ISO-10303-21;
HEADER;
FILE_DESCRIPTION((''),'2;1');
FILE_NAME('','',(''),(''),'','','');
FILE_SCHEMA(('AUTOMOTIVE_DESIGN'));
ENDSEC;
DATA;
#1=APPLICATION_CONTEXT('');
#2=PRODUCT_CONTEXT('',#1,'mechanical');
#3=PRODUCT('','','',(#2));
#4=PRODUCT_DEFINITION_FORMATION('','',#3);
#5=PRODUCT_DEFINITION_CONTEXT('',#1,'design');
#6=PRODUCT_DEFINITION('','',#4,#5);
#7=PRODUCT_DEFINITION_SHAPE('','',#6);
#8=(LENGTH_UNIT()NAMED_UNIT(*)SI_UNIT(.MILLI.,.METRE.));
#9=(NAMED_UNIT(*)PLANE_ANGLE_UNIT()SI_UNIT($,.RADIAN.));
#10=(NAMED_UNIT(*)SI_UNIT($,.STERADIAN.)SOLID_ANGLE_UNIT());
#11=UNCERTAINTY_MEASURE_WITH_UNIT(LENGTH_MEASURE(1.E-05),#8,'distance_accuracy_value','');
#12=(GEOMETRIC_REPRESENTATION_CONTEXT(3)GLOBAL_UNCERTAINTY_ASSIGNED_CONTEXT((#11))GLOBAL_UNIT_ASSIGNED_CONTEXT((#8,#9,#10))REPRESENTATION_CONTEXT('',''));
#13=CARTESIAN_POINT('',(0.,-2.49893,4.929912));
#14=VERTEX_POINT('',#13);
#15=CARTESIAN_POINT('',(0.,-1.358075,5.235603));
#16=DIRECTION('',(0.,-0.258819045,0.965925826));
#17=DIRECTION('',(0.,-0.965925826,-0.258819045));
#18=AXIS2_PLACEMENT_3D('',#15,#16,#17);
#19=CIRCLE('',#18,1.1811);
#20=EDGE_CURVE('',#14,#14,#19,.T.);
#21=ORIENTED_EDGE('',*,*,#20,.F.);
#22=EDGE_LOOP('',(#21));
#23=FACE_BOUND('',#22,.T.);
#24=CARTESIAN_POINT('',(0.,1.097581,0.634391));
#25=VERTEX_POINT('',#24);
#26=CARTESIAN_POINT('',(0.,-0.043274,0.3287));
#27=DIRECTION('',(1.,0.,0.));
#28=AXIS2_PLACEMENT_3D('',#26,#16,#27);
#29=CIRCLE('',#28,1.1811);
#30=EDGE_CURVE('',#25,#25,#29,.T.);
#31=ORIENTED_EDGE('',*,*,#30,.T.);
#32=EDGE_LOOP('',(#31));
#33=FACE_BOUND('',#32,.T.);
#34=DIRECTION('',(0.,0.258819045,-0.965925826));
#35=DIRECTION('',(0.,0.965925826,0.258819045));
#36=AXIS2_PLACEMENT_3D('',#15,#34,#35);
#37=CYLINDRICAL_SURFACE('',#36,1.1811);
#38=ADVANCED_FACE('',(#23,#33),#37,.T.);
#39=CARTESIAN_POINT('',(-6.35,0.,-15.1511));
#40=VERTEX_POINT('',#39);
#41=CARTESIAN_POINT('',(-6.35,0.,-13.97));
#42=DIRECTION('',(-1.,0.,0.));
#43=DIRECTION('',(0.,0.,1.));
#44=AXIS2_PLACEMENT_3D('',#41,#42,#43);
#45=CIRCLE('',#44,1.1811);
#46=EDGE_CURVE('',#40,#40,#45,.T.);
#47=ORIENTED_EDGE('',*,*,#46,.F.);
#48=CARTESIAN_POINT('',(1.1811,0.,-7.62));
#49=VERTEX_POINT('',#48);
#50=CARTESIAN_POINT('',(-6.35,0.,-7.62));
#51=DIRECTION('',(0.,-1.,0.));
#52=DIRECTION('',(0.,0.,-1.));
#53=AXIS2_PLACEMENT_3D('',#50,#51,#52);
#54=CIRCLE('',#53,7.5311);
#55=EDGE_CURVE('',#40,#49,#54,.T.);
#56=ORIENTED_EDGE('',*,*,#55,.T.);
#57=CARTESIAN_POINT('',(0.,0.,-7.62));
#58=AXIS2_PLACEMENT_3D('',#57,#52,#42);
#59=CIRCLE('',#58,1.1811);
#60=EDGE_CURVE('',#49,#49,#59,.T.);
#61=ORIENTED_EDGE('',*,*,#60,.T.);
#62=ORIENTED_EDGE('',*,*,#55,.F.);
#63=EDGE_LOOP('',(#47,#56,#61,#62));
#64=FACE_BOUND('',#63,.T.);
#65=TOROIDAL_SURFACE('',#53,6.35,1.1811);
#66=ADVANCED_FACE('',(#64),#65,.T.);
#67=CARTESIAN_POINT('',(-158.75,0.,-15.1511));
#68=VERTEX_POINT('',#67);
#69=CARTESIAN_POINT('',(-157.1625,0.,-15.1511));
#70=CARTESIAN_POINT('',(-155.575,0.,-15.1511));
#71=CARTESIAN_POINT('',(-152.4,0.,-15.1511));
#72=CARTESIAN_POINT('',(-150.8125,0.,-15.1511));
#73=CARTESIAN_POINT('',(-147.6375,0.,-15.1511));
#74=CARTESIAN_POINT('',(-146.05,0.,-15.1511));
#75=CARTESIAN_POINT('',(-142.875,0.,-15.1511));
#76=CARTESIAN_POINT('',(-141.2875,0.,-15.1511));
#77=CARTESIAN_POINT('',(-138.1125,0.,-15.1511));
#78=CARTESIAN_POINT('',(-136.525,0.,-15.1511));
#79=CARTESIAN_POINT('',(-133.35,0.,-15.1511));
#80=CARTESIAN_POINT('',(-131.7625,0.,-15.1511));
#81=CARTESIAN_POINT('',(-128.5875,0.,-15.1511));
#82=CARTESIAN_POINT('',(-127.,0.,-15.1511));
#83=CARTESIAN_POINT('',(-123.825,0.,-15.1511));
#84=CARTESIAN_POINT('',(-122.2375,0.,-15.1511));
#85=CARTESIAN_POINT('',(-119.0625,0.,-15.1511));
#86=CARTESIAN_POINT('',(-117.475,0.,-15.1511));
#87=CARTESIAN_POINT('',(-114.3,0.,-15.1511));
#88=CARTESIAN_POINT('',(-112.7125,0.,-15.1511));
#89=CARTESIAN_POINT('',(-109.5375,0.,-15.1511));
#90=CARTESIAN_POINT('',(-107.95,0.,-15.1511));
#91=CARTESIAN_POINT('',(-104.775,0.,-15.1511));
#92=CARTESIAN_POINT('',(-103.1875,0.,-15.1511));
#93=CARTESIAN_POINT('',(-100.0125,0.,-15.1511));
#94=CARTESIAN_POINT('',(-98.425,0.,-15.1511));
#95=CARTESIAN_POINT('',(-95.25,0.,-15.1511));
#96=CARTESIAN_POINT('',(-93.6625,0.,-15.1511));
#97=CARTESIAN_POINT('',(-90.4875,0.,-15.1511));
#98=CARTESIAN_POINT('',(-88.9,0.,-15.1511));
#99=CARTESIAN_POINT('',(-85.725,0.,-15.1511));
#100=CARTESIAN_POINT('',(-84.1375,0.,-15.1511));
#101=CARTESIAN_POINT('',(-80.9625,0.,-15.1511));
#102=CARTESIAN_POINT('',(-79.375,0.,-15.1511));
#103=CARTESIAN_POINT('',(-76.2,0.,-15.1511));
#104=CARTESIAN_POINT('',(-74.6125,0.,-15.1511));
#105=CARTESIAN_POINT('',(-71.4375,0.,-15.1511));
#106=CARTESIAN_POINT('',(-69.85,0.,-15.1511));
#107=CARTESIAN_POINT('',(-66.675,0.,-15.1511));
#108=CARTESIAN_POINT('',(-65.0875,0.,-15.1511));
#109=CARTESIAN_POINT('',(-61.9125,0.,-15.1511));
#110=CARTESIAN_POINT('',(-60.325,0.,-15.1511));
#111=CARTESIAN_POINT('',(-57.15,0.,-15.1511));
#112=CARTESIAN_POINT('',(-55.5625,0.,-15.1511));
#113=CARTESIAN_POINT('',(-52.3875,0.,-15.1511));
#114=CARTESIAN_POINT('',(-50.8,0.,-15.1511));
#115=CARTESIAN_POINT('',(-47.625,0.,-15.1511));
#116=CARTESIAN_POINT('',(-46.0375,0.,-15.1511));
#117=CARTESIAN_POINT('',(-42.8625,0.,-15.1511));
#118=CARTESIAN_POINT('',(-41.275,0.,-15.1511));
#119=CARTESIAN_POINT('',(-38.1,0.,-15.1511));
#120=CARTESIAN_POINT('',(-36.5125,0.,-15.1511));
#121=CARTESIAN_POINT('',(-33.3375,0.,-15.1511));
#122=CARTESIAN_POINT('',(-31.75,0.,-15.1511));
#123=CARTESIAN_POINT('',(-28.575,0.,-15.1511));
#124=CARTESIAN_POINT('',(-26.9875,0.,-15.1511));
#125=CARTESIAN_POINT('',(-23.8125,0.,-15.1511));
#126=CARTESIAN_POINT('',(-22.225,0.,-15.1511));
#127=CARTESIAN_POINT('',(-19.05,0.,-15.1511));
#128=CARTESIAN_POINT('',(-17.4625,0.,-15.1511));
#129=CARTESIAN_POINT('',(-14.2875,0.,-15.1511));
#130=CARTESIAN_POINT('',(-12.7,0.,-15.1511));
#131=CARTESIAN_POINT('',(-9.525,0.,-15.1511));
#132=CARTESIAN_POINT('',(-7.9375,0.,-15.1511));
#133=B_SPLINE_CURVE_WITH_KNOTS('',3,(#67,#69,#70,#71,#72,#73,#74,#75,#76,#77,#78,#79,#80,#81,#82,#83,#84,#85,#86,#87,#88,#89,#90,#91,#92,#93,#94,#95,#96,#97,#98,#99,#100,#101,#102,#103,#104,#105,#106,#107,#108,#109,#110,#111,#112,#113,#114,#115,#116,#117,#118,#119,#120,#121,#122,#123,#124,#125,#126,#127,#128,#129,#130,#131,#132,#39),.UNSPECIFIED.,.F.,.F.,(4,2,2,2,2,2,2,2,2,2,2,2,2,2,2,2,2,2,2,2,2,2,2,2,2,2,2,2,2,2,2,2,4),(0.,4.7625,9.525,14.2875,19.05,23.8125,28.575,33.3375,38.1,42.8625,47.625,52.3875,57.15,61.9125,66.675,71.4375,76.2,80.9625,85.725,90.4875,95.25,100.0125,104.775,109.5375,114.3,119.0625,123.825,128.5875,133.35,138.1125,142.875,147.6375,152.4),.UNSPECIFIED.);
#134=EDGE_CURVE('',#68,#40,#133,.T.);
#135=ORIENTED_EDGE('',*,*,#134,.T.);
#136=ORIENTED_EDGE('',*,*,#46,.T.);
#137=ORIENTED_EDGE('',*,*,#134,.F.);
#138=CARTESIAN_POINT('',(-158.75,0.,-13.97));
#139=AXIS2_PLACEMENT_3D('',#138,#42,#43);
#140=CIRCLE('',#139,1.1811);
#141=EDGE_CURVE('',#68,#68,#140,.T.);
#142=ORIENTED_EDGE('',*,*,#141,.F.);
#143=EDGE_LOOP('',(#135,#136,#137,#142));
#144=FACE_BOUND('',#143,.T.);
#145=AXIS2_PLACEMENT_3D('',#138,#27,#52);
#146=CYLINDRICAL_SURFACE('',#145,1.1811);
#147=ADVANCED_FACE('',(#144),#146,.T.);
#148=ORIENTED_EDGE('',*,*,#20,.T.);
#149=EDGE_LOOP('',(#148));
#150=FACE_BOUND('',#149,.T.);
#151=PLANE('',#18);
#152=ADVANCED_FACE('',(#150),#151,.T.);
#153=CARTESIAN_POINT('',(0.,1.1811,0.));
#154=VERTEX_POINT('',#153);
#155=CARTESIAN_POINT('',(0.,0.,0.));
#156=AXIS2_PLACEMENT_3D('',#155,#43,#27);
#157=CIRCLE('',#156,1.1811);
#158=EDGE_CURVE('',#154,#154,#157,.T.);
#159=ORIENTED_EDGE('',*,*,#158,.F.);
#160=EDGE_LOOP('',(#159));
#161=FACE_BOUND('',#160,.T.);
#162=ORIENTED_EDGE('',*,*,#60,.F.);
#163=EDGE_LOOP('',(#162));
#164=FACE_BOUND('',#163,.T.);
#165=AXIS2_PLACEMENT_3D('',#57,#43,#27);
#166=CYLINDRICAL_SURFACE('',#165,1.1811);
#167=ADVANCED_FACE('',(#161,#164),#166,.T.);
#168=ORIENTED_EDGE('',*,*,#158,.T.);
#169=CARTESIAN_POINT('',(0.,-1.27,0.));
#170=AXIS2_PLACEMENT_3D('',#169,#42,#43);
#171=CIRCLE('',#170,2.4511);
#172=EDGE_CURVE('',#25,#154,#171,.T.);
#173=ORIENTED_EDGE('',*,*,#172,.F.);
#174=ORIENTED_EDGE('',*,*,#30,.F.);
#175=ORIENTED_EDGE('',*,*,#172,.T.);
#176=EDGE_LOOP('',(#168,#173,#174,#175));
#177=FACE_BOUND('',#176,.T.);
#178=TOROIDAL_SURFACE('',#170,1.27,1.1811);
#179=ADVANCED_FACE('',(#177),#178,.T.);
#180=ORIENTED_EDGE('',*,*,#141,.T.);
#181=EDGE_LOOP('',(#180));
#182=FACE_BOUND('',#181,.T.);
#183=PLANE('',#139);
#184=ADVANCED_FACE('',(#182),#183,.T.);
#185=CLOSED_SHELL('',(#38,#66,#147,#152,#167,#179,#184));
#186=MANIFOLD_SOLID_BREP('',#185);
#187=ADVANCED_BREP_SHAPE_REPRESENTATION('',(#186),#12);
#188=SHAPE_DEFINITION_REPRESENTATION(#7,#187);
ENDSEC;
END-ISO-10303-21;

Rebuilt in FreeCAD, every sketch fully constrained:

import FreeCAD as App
import Part
import Sketcher

V = App.Vector
Q = App.Units.Quantity

doc = App.newDocument("Part")
body = doc.addObject("PartDesign::Body", "Body")

# Sketch on XY plane
sketch1 = body.newObject("Sketcher::SketchObject", "Sketch")
sketch1.AttachmentSupport = (doc.getObject("XY_Plane"), [""])
sketch1.MapMode = "FlatFace"
sketch1.addGeometry(Part.Circle(V(0, 0, 0), V(0, 0, 1), 1.1811), False)
sketch1.addConstraint([
    Sketcher.Constraint("Coincident", 0, 3, -1, 1),
    Sketcher.Constraint("Diameter", 0, Q("0.093 in")),
])
pad1 = body.newObject("PartDesign::Pad", "Pad")
pad1.Profile = sketch1
pad1.Length = Q("0.3 in")
pad1.Reversed = True

# Sketch on XY plane
sketch2 = body.newObject("Sketcher::SketchObject", "Sketch001")
sketch2.AttachmentSupport = (doc.getObject("XY_Plane"), [""])
sketch2.MapMode = "FlatFace"
sketch2.AttachmentOffset = App.Placement(V(0, 0, -0.3 * 25.4), App.Rotation())
sketch2.addGeometry(Part.Circle(V(0, 0, 0), V(0, 0, 1), 1.1811), False)
sketch2.addGeometry(Part.LineSegment(V(-6.35, 0, 0), V(-6.35, 10, 0)), True)  # axis
sketch2.addConstraint([
    Sketcher.Constraint("Vertical", 1),
    Sketcher.Constraint("Coincident", 0, 3, -1, 1),
    Sketcher.Constraint("PointOnObject", 1, 1, -1),
    Sketcher.Constraint("Diameter", 0, Q("0.093 in")),
    Sketcher.Constraint("DistanceX", 1, 1, -1, 1, Q("0.25 in")),
    Sketcher.Constraint("DistanceY", 1, 1, 1, 2, Q("10 mm")),
])
revolution = body.newObject("PartDesign::Revolution", "Revolution")
revolution.Profile = sketch2
revolution.ReferenceAxis = (sketch2, ["Axis0"])
revolution.Angle = 90

# Sketch on YZ plane
sketch3 = body.newObject("Sketcher::SketchObject", "Sketch002")
sketch3.AttachmentSupport = (doc.getObject("YZ_Plane"), [""])
sketch3.MapMode = "FlatFace"
sketch3.AttachmentOffset = App.Placement(V(0, 0, -0.25 * 25.4), App.Rotation())
sketch3.addGeometry(Part.Circle(V(0, -13.97, 0), V(0, 0, 1), 1.1811), False)
sketch3.addConstraint([
    Sketcher.Constraint("PointOnObject", 0, 3, -2),
    Sketcher.Constraint("Diameter", 0, Q("0.093 in")),
    Sketcher.Constraint("DistanceY", 0, 3, -1, 1, Q("0.55 in")),
])
pad2 = body.newObject("PartDesign::Pad", "Pad001")
pad2.Profile = sketch3
pad2.Length = Q("6 in")
pad2.Reversed = True

# Sketch on XY plane
sketch4 = body.newObject("Sketcher::SketchObject", "Sketch003")
sketch4.AttachmentSupport = (doc.getObject("XY_Plane"), [""])
sketch4.MapMode = "FlatFace"
sketch4.addGeometry(Part.Circle(V(0, 0, 0), V(0, 0, 1), 1.1811), False)
sketch4.addGeometry(Part.LineSegment(V(0, -1.27, 0), V(10, -1.27, 0)), True)  # axis
sketch4.addConstraint([
    Sketcher.Constraint("Horizontal", 1),
    Sketcher.Constraint("Coincident", 0, 3, -1, 1),
    Sketcher.Constraint("PointOnObject", 1, 1, -2),
    Sketcher.Constraint("Diameter", 0, Q("0.093 in")),
    Sketcher.Constraint("DistanceY", 1, 1, -1, 1, Q("0.05 in")),
    Sketcher.Constraint("DistanceX", 1, 1, 1, 2, Q("10 mm")),
])
revolution2 = body.newObject("PartDesign::Revolution", "Revolution001")
revolution2.Profile = sketch4
revolution2.ReferenceAxis = (sketch4, ["Axis0"])
revolution2.Angle = 15

# Sketch on an angled plane
sketch5 = body.newObject("Sketcher::SketchObject", "Sketch004")
sketch5.Placement = App.Placement(V(0, -0.085074, 0.3175), App.Rotation(V(-1, 0, 0), V(0, -0.965925826, -0.258819045), V(0, -0.258819045, 0.965925826), "ZXY"))
sketch5.addGeometry(Part.Circle(V(0, -0.043274, 0), V(0, 0, 1), 1.1811), False)
sketch5.addConstraint([
    Sketcher.Constraint("PointOnObject", 0, 3, -2),
    Sketcher.Constraint("Diameter", 0, Q("0.093 in")),
    Sketcher.Constraint("DistanceY", 0, 3, -1, 1, Q("0.043274 mm")),
])
pad3 = body.newObject("PartDesign::Pad", "Pad002")
pad3.Profile = sketch5
pad3.Length = Q("0.2 in")

doc.recompute()
